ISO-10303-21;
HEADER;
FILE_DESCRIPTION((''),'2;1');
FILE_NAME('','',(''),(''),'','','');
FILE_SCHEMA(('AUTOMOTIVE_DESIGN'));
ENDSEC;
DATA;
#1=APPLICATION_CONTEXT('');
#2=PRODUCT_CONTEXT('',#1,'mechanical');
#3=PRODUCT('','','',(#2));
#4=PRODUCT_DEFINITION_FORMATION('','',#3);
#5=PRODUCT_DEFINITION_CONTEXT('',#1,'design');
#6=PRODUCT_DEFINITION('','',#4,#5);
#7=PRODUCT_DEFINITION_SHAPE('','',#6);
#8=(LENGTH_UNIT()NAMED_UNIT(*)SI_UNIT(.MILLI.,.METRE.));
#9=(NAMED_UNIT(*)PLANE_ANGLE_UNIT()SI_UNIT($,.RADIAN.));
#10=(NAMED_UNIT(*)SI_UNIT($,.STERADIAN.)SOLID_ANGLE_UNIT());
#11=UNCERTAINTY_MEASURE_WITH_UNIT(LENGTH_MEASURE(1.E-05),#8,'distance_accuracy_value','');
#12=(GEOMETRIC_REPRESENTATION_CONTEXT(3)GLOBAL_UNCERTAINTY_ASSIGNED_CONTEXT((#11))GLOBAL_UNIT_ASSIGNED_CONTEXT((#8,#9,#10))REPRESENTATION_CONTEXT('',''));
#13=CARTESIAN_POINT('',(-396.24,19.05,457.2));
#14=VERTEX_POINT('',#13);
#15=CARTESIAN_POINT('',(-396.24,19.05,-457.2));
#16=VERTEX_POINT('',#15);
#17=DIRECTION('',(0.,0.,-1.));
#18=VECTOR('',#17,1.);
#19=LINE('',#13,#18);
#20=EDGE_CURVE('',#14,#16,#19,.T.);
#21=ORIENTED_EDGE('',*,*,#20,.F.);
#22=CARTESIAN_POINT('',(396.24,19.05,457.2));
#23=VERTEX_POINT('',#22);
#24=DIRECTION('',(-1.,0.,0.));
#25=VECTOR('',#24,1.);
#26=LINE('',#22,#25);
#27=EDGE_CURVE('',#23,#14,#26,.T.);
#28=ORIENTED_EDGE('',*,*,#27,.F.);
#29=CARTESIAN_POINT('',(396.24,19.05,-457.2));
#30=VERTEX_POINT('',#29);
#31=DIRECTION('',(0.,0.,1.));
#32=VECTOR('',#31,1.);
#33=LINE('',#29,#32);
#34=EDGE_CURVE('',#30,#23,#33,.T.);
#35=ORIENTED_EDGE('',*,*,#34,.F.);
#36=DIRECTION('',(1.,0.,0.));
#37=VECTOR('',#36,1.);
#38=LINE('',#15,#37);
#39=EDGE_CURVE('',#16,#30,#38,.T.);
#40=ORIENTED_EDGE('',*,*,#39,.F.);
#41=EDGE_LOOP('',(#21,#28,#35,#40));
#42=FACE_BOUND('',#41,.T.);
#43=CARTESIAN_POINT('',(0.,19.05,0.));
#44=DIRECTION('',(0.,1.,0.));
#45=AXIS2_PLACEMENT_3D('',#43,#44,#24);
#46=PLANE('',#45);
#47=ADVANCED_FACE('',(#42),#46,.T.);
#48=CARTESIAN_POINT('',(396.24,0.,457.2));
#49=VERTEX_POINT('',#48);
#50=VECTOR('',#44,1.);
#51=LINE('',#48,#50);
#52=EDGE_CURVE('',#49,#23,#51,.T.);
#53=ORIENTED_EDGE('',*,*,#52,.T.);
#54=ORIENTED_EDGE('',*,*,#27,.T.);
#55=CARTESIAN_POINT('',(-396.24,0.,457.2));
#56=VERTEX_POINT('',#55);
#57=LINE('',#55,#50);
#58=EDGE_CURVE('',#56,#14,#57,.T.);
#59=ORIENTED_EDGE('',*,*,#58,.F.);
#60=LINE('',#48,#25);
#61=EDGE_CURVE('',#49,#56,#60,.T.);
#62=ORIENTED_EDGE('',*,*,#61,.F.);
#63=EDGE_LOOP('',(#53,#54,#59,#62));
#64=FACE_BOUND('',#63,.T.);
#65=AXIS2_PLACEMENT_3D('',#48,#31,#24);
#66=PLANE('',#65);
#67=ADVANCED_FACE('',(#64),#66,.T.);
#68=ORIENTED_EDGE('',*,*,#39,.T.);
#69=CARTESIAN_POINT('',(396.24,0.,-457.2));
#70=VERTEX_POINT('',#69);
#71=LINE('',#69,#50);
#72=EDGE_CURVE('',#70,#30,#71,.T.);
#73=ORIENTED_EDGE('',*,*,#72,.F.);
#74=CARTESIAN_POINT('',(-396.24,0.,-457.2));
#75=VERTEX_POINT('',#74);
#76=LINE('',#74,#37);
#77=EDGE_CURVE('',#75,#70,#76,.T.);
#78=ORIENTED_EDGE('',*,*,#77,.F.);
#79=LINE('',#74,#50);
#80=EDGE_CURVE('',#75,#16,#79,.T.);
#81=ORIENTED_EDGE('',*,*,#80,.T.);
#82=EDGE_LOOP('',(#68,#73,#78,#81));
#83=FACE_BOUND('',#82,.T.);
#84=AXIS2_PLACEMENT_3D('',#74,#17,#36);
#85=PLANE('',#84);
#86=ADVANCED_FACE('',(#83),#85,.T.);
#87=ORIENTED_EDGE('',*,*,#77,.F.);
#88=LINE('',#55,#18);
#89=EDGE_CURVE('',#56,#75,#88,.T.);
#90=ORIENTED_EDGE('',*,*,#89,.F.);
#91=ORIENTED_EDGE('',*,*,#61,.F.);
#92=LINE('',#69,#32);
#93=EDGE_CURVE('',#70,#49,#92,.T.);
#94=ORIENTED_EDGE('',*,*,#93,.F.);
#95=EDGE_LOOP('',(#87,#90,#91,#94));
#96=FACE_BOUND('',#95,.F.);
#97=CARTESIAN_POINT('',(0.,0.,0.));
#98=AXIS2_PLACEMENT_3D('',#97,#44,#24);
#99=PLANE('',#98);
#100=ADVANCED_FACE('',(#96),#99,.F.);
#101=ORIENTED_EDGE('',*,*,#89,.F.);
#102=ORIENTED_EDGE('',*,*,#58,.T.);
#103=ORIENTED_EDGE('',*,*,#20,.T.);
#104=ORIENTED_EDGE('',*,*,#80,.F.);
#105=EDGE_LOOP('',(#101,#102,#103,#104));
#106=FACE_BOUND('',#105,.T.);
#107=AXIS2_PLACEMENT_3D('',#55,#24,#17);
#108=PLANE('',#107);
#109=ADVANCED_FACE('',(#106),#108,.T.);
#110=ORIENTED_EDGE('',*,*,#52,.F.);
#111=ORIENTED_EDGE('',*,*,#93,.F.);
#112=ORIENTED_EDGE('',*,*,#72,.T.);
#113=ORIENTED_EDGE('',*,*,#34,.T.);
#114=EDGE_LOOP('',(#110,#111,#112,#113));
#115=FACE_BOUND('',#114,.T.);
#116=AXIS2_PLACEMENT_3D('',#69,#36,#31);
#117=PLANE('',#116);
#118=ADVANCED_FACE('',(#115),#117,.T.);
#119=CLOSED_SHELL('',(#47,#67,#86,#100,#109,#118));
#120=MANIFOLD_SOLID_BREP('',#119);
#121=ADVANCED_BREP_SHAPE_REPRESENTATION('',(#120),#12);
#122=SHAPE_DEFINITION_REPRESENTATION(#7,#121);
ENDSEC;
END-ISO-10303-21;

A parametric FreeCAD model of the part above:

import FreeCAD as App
import Part
import Sketcher
from FreeCAD import Vector
Q = App.Units.Quantity


def add_polygon(sketch, points):
    """Adds a closed chain of lines whose ends are joined by coincident constraints."""
    first, n = sketch.GeometryCount, len(points)
    for a, b in zip(points, points[1:] + points[:1]):
        sketch.addGeometry(Part.LineSegment(App.Vector(*a, 0), App.Vector(*b, 0)), False)
    for i in range(n):
        sketch.addConstraint(Sketcher.Constraint("Coincident", first + i, 2, first + (i + 1) % n, 1))

doc = App.newDocument("Part")
body = doc.addObject("PartDesign::Body", "Body")

# Sketch on XZ plane
sketch1 = body.newObject("Sketcher::SketchObject", "Sketch")
sketch1.AttachmentSupport = (doc.getObject("XZ_Plane"), [""])
sketch1.MapMode = "FlatFace"
add_polygon(sketch1, [(-396, 457), (396, 457), (396, -457), (-396, -457)])  # lines 0-3
sketch1.addConstraint([
    Sketcher.Constraint("Horizontal", 0),
    Sketcher.Constraint("Vertical", 1),
    Sketcher.Constraint("Horizontal", 2),
    Sketcher.Constraint("Vertical", 3),
    Sketcher.Constraint("Symmetric", 0, 2, 2, 2, -1, 1),
    Sketcher.Constraint("DistanceY", 1, 2, 1, 1, Q("36 in")),
    Sketcher.Constraint("DistanceX", 0, 1, 0, 2, Q("31.2 in")),
])
pad1 = body.newObject("PartDesign::Pad", "Pad")
pad1.Profile = sketch1
pad1.Length = Q("0.75 in")
pad1.Reversed = True

doc.recompute()
